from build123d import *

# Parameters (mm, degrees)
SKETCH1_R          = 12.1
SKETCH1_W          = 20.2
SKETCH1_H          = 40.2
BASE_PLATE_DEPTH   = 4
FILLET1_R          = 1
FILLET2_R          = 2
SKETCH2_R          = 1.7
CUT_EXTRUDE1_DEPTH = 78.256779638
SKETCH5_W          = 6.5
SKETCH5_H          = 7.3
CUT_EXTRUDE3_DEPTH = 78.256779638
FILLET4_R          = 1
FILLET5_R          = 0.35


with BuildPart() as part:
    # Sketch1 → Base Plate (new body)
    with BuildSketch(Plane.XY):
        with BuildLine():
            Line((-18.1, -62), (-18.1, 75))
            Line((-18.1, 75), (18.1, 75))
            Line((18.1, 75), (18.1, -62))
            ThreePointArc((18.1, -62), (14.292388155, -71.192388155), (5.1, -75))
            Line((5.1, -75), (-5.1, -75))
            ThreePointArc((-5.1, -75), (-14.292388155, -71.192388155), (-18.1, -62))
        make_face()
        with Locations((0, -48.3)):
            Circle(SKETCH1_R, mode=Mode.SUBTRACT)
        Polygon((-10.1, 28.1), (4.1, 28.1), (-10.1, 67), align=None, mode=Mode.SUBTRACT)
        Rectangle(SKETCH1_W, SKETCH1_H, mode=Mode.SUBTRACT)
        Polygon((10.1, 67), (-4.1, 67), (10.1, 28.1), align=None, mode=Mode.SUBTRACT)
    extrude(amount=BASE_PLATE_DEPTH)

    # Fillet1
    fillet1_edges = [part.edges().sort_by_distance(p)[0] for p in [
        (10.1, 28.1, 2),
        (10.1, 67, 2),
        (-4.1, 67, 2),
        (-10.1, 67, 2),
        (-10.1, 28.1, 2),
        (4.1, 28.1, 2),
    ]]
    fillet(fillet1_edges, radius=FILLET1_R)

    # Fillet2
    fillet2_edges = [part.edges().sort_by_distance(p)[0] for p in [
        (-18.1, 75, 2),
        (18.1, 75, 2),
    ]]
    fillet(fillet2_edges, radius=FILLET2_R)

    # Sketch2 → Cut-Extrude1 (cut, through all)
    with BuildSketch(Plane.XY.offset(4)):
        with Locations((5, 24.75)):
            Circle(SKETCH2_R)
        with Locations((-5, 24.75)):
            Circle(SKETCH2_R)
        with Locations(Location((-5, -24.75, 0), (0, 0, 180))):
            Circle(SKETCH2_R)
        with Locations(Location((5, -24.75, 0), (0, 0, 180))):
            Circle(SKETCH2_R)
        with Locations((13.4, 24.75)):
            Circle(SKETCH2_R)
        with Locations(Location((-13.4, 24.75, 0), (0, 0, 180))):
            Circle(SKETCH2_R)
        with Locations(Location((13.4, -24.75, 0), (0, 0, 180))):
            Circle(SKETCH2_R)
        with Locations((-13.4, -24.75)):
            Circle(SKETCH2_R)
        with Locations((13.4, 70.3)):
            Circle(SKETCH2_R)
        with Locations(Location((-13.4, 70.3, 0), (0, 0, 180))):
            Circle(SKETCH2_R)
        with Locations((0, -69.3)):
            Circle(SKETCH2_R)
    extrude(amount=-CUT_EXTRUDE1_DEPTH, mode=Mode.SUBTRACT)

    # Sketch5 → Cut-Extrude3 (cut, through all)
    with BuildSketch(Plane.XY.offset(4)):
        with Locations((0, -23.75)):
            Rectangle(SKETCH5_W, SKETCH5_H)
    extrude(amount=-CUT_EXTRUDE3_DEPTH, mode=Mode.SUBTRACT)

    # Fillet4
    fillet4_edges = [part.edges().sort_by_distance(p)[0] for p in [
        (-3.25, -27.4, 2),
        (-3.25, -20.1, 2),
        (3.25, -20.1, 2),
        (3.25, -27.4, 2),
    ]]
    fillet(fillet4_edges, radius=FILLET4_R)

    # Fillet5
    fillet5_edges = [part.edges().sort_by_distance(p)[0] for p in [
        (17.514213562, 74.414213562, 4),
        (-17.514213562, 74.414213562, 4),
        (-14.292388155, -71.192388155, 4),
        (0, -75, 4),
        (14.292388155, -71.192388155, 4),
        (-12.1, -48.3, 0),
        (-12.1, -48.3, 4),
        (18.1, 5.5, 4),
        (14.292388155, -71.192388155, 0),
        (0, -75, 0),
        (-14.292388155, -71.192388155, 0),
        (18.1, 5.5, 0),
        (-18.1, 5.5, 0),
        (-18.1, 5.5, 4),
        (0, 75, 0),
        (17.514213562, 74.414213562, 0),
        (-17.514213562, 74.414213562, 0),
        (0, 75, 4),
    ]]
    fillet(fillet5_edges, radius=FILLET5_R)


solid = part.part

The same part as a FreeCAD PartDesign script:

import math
import FreeCAD as App
import Part
import Sketcher
from FreeCAD import Vector


def edges_at(feature, points):
    """Names of the edges that pass closest to the given points."""
    edges = feature.Shape.Edges
    near = lambda p: min(range(len(edges)), key=lambda i: edges[i].distToShape(Part.Vertex(*p))[0])
    return sorted({f"Edge{near(p) + 1}" for p in points})


def add_polygon(sketch, points):
    """Adds a closed chain of lines whose ends are joined by coincident constraints."""
    first, n = sketch.GeometryCount, len(points)
    for a, b in zip(points, points[1:] + points[:1]):
        sketch.addGeometry(Part.LineSegment(App.Vector(*a, 0), App.Vector(*b, 0)), False)
    for i in range(n):
        sketch.addConstraint(Sketcher.Constraint("Coincident", first + i, 2, first + (i + 1) % n, 1))

doc = App.newDocument("Part")
body = doc.addObject("PartDesign::Body", "Body")

sketch1 = body.newObject("Sketcher::SketchObject", "Sketch")
sketch1.AttachmentSupport = (doc.getObject("XY_Plane"), [""])
sketch1.MapMode = "FlatFace"
sketch1.addGeometry(Part.LineSegment(Vector(-18, 75, 0), Vector(-18, -62, 0)), False)
sketch1.addGeometry(Part.ArcOfCircle(Part.Circle(Vector(-5, -62, 0), Vector(0, 0, 1), 13), math.radians(-180), math.radians(-90)), False)
sketch1.addGeometry(Part.LineSegment(Vector(-5, -75, 0), Vector(5, -75, 0)), False)
sketch1.addGeometry(Part.ArcOfCircle(Part.Circle(Vector(5, -62, 0), Vector(0, 0, 1), 13), math.radians(-90), math.radians(0)), False)
sketch1.addGeometry(Part.LineSegment(Vector(18, -62, 0), Vector(18, 75, 0)), False)
sketch1.addGeometry(Part.LineSegment(Vector(18, 75, 0), Vector(-18, 75, 0)), False)
sketch1.addGeometry(Part.Circle(Vector(0, -48, 0), Vector(0, 0, 1), 12), False)
add_polygon(sketch1, [(-10, -20), (-10, 20), (10, 20), (10, -20)])
add_polygon(sketch1, [(10, 67), (10, 28), (-4, 67)])
add_polygon(sketch1, [(-10, 28), (-10, 67), (4, 28)])
sketch1.addConstraint([
    Sketcher.Constraint("Tangent", 0, 2, 1, 1),
    Sketcher.Constraint("Tangent", 1, 2, 2, 1),
    Sketcher.Constraint("Tangent", 2, 2, 3, 1),
    Sketcher.Constraint("Tangent", 3, 2, 4, 1),
    Sketcher.Constraint("Coincident", 4, 2, 5, 1),
    Sketcher.Constraint("Coincident", 5, 2, 0, 1),
    Sketcher.Constraint("Vertical", 0),
    Sketcher.Constraint("Horizontal", 2),
    Sketcher.Constraint("Vertical", 4),
    Sketcher.Constraint("Horizontal", 5),
    Sketcher.Constraint("Vertical", 7),
    Sketcher.Constraint("Horizontal", 8),
    Sketcher.Constraint("Vertical", 9),
    Sketcher.Constraint("Horizontal", 10),
    Sketcher.Constraint("Vertical", 11),
    Sketcher.Constraint("Horizontal", 13),
    Sketcher.Constraint("Vertical", 14),
    Sketcher.Constraint("Horizontal", 16),
    Sketcher.Constraint("Equal", 1, 3),
    Sketcher.Constraint("Symmetric", 7, 2, 9, 2, -1, 1),
    Sketcher.Constraint("Symmetric", 13, 2, 14, 2, -2),
    Sketcher.Constraint("PointOnObject", 6, 3, -2),
    Sketcher.Constraint("Parallel", 12, 15),
    Sketcher.Constraint("Horizontal", 11, 2, 15, 2),
    Sketcher.Constraint("Vertical", 9, 2, 11, 2),
    Sketcher.Constraint("Radius", 1, 13.0),
    Sketcher.Constraint("Diameter", 6, 24.2),
    Sketcher.Constraint("DistanceY", 0, 2, 0, 1, 137.0),
    Sketcher.Constraint("DistanceX", 2, 1, 2, 2, 10.2),
    Sketcher.Constraint("DistanceX", 8, 1, 8, 2, 20.2),
    Sketcher.Constraint("DistanceX", 13, 1, 13, 2, 14.2),
    Sketcher.Constraint("DistanceY", 7, 1, 7, 2, 40.2),
    Sketcher.Constraint("DistanceY", 11, 2, 11, 1, 38.9),
    Sketcher.Constraint("DistanceY", 1, 3, -1, 1, 62.0),
    Sketcher.Constraint("DistanceY", -1, 1, 12, 2, 67.0),
    Sketcher.Constraint("DistanceX", 5, 2, 7, 2, 8.0),
    Sketcher.Constraint("DistanceY", 6, 3, -1, 1, 48.3),
])
pad1 = body.newObject("PartDesign::Pad", "Pad")
pad1.Profile = sketch1
pad1.Length = 4
doc.recompute()

fillet = body.newObject("PartDesign::Fillet", "Fillet")
fillet.Base = (pad1, edges_at(pad1, [
    (10.1, 28.1, 2),
    (10.1, 67, 2),
    (-4.1, 67, 2),
    (-10.1, 67, 2),
    (-10.1, 28.1, 2),
    (4.1, 28.1, 2),
]))
fillet.Radius = 1
doc.recompute()

fillet2 = body.newObject("PartDesign::Fillet", "Fillet001")
fillet2.Base = (fillet, edges_at(fillet, [(-18.1, 75, 2), (18.1, 75, 2)]))
fillet2.Radius = 2

sketch2 = body.newObject("Sketcher::SketchObject", "Sketch001")
sketch2.AttachmentSupport = (doc.getObject("XY_Plane"), [""])
sketch2.MapMode = "FlatFace"
sketch2.AttachmentOffset = App.Placement(Vector(0, 0, 4), App.Rotation())
sketch2.addGeometry([
    Part.Circle(Vector(5, 24.8, 0), Vector(0, 0, 1), 1.7),
    Part.Circle(Vector(-5, 24.8, 0), Vector(0, 0, 1), 1.7),
    Part.Circle(Vector(-5, -24.8, 0), Vector(0, 0, 1), 1.7),
    Part.Circle(Vector(5, -24.8, 0), Vector(0, 0, 1), 1.7),
    Part.Circle(Vector(13.4, 24.8, 0), Vector(0, 0, 1), 1.7),
    Part.Circle(Vector(-13.4, 24.8, 0), Vector(0, 0, 1), 1.7),
    Part.Circle(Vector(13.4, -24.8, 0), Vector(0, 0, 1), 1.7),
    Part.Circle(Vector(-13.4, -24.8, 0), Vector(0, 0, 1), 1.7),
    Part.Circle(Vector(13.4, 70.3, 0), Vector(0, 0, 1), 1.7),
    Part.Circle(Vector(-13.4, 70.3, 0), Vector(0, 0, 1), 1.7),
    Part.Circle(Vector(0, -69.3, 0), Vector(0, 0, 1), 1.7),
], False)
sketch2.addConstraint([
    Sketcher.Constraint("Equal", 0, 1),
    Sketcher.Constraint("Equal", 1, 2),
    Sketcher.Constraint("Equal", 2, 3),
    Sketcher.Constraint("Equal", 3, 4),
    Sketcher.Constraint("Equal", 4, 5),
    Sketcher.Constraint("Equal", 5, 6),
    Sketcher.Constraint("Equal", 6, 7),
    Sketcher.Constraint("Equal", 7, 8),
    Sketcher.Constraint("Equal", 8, 9),
    Sketcher.Constraint("Equal", 9, 10),
    Sketcher.Constraint("Symmetric", 0, 3, 2, 3, -1, 1),
    Sketcher.Constraint("Symmetric", 1, 3, 3, 3, -1, 1),
    Sketcher.Constraint("Symmetric", 5, 3, 6, 3, -1, 1),
    Sketcher.Constraint("Symmetric", 4, 3, 7, 3, -1, 1),
    Sketcher.Constraint("Symmetric", 0, 3, 1, 3, -2),
    Sketcher.Constraint("Symmetric", 4, 3, 5, 3, -2),
    Sketcher.Constraint("Symmetric", 8, 3, 9, 3, -2),
    Sketcher.Constraint("PointOnObject", 10, 3, -2),
    Sketcher.Constraint("Horizontal", 1, 3, 4, 3),
    Sketcher.Constraint("Vertical", 6, 3, 8, 3),
    Sketcher.Constraint("Diameter", 0, 3.4),
    Sketcher.Constraint("DistanceX", -1, 1, 0, 3, 5.0),
    Sketcher.Constraint("DistanceX", -1, 1, 4, 3, 13.4),
    Sketcher.Constraint("DistanceY", -1, 1, 8, 3, 70.3),
    Sketcher.Constraint("DistanceY", 10, 3, -1, 1, 69.3),
    Sketcher.Constraint("DistanceY", 2, 3, 1, 3, 49.5),
])
pocket1 = body.newObject("PartDesign::Pocket", "Pocket")
pocket1.Profile = sketch2
pocket1.Type = "ThroughAll"

sketch3 = body.newObject("Sketcher::SketchObject", "Sketch002")
sketch3.AttachmentSupport = (doc.getObject("XY_Plane"), [""])
sketch3.MapMode = "FlatFace"
sketch3.AttachmentOffset = App.Placement(Vector(0, 0, 4), App.Rotation())
add_polygon(sketch3, [(-3, -20), (-3, -27), (3, -27), (3, -20)])
sketch3.addConstraint([
    Sketcher.Constraint("Vertical", 0),
    Sketcher.Constraint("Horizontal", 1),
    Sketcher.Constraint("Vertical", 2),
    Sketcher.Constraint("Horizontal", 3),
    Sketcher.Constraint("DistanceX", 1, 1, 1, 2, 6.5),
    Sketcher.Constraint("DistanceY", 0, 2, 0, 1, 7.3),
    Sketcher.Constraint("DistanceY", 0, 2, -1, 1, 27.4),
    Sketcher.Constraint("DistanceX", 0, 2, -1, 1, 3.25),
])
pocket2 = body.newObject("PartDesign::Pocket", "Pocket001")
pocket2.Profile = sketch3
pocket2.Type = "ThroughAll"
doc.recompute()

fillet3 = body.newObject("PartDesign::Fillet", "Fillet002")
fillet3.Base = (pocket2, edges_at(pocket2, [
    (-3.25, -27.4, 2),
    (-3.25, -20.1, 2),
    (3.25, -20.1, 2),
    (3.25, -27.4, 2),
]))
fillet3.Radius = 1
doc.recompute()

fillet4 = body.newObject("PartDesign::Fillet", "Fillet003")
fillet4.Base = (fillet3, edges_at(fillet3, [
    (17.514, 74.414, 4),
    (-17.514, 74.414, 4),
    (-14.292, -71.192, 4),
    (0, -75, 4),
    (14.292, -71.192, 4),
    (-12.1, -48.3, 0),
    (-12.1, -48.3, 4),
    (18.1, 5.5, 4),
    (14.292, -71.192, 0),
    (0, -75, 0),
    (-14.292, -71.192, 0),
    (18.1, 5.5, 0),
    (-18.1, 5.5, 0),
    (-18.1, 5.5, 4),
    (0, 75, 0),
    (17.514, 74.414, 0),
    (-17.514, 74.414, 0),
    (0, 75, 4),
]))
fillet4.Radius = 0.35

doc.recompute()
